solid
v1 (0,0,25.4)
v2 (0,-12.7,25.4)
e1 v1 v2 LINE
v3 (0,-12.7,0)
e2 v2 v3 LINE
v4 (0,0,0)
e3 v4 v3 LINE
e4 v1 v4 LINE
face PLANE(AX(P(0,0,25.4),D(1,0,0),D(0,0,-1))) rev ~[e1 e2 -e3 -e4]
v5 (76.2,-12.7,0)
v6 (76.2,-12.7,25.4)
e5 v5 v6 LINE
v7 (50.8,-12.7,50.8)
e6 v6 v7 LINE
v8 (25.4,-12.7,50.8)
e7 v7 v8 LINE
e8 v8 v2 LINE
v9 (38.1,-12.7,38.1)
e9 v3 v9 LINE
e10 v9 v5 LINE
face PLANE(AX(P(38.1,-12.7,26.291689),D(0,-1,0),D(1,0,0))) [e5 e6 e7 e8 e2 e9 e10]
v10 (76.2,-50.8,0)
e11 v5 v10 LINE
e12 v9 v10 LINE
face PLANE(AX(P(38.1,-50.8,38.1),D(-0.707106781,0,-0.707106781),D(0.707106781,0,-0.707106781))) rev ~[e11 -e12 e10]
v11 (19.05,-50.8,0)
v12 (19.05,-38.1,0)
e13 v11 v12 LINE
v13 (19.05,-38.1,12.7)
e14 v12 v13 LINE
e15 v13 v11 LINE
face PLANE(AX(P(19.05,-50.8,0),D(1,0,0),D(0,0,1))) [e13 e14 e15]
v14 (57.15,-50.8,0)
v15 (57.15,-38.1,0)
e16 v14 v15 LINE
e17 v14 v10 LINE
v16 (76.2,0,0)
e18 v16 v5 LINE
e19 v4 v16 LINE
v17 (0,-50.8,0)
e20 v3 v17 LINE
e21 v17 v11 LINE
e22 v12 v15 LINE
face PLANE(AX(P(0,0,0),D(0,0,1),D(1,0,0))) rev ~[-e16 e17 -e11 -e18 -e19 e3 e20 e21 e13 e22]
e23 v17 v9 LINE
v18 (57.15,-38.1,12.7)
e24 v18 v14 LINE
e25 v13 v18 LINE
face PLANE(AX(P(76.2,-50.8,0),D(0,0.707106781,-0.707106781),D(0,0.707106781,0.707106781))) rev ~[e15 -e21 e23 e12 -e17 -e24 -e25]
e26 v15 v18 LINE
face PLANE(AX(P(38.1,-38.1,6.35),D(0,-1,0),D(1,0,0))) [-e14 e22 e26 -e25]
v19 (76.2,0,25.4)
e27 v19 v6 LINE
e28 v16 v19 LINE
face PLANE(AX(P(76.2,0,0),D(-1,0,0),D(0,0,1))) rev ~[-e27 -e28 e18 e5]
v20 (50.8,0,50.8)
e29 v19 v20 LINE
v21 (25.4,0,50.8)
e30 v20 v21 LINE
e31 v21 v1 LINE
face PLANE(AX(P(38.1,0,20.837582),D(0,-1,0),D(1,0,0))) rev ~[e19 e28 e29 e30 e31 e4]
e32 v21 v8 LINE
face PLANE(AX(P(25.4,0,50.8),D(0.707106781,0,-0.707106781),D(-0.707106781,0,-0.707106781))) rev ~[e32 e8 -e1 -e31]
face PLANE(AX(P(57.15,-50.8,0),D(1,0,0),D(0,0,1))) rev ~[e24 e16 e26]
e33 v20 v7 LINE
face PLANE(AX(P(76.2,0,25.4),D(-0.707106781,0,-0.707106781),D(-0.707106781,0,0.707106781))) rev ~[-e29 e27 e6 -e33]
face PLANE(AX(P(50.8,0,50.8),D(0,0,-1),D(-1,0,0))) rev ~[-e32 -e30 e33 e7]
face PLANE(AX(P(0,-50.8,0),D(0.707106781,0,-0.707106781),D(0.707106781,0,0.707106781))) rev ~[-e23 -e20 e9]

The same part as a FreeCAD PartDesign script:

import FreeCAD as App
import Part
import Sketcher
Q = App.Units.Quantity


def add_polygon(sketch, points):
    """Adds a closed chain of lines whose ends are joined by coincident constraints."""
    first, n = sketch.GeometryCount, len(points)
    for a, b in zip(points, points[1:] + points[:1]):
        sketch.addGeometry(Part.LineSegment(App.Vector(*a, 0), App.Vector(*b, 0)), False)
    for i in range(n):
        sketch.addConstraint(Sketcher.Constraint("Coincident", first + i, 2, first + (i + 1) % n, 1))

doc = App.newDocument("Part")
body = doc.addObject("PartDesign::Body", "Body")

# Sketch on XZ plane
sketch1 = doc.addObject("Sketcher::SketchObject", "Sketch")
body.addObject(sketch1)
sketch1.AttachmentSupport = (doc.XZ_Plane, [""])
sketch1.MapMode = "FlatFace"
add_polygon(sketch1, [(0, 25.4), (0, 0), (76.2, 0), (76.2, 25.4), (50.8, 50.8), (25.4, 50.8)])  # lines 0-5
sketch1.addConstraint([
    Sketcher.Constraint("Vertical", 0),
    Sketcher.Constraint("Horizontal", 1),
    Sketcher.Constraint("Vertical", 2),
    Sketcher.Constraint("Horizontal", 4),
    Sketcher.Constraint("Coincident", 0, 2, -1, 1),
    Sketcher.Constraint("Perpendicular", 3, 5),
    Sketcher.Constraint("Horizontal", 2, 2, 5, 2),
    Sketcher.Constraint("Equal", 4, 0),
    Sketcher.Constraint("Equal", 3, 5),
    Sketcher.Constraint("DistanceX", 1, 1, 1, 2, Q("3 in")),
    Sketcher.Constraint("DistanceX", 4, 2, 4, 1, Q("1 in")),
])
pad1 = doc.addObject("PartDesign::Pad", "Pad")
body.addObject(pad1)
pad1.Profile = sketch1
pad1.Length = Q("2 in")

# Sketch on XZ plane
sketch2 = doc.addObject("Sketcher::SketchObject", "Sketch001")
body.addObject(sketch2)
sketch2.AttachmentSupport = (doc.XZ_Plane, [""])
sketch2.MapMode = "FlatFace"
sketch2.AttachmentOffset = App.Placement(App.Vector(0, 0, 2 * 25.4), App.Rotation())
add_polygon(sketch2, [(0, 25.4), (0, 0), (38.1, 38.1), (76.2, 0), (76.2, 25.4), (50.8, 50.8), (25.4, 50.8)])  # lines 0-6
sketch2.addConstraint([
    Sketcher.Constraint("Vertical", 0),
    Sketcher.Constraint("Vertical", 3),
    Sketcher.Constraint("Horizontal", 5),
    Sketcher.Constraint("Coincident", 0, 2, -1, 1),
    Sketcher.Constraint("PointOnObject", 2, 2, -1),
    Sketcher.Constraint("Perpendicular", 1, 2),
    Sketcher.Constraint("Parallel", 2, 4),
    Sketcher.Constraint("Perpendicular", 4, 6),
    Sketcher.Constraint("Horizontal", 3, 2, 6, 2),
    Sketcher.Constraint("Equal", 5, 0),
    Sketcher.Constraint("Equal", 1, 2),
    Sketcher.Constraint("DistanceX", 5, 2, 5, 1, Q("1 in")),
    Sketcher.Constraint("DistanceX", -1, 1, 2, 2, Q("3 in")),
])
pocket1 = doc.addObject("PartDesign::Pocket", "Pocket")
body.addObject(pocket1)
pocket1.Profile = sketch2
pocket1.Length = Q("1.5 in")

# Sketch on YZ plane
sketch3 = doc.addObject("Sketcher::SketchObject", "Sketch002")
body.addObject(sketch3)
sketch3.AttachmentSupport = (doc.YZ_Plane, [""])
sketch3.MapMode = "FlatFace"
sketch3.AttachmentOffset = App.Placement(App.Vector(0, 0, 3 * 25.4), App.Rotation())
add_polygon(sketch3, [(-50.8, 38.1), (-50.8, 0), (-12.7, 38.1)])  # lines 0-2
sketch3.addConstraint([
    Sketcher.Constraint("Vertical", 0),
    Sketcher.Constraint("Horizontal", 2),
    Sketcher.Constraint("PointOnObject", 0, 2, -1),
    Sketcher.Constraint("Equal", 2, 0),
    Sketcher.Constraint("DistanceX", 2, 2, 2, 1, Q("1.5 in")),
    Sketcher.Constraint("DistanceX", 0, 2, -1, 1, Q("2 in")),
])
pocket2 = doc.addObject("PartDesign::Pocket", "Pocket001")
body.addObject(pocket2)
pocket2.Profile = sketch3
pocket2.Length = Q("3 in")

# Sketch on XZ plane
sketch4 = doc.addObject("Sketcher::SketchObject", "Sketch003")
body.addObject(sketch4)
sketch4.AttachmentSupport = (doc.XZ_Plane, [""])
sketch4.MapMode = "FlatFace"
sketch4.AttachmentOffset = App.Placement(App.Vector(0, 0, 2 * 25.4), App.Rotation())
add_polygon(sketch4, [(19.05, 12.7), (19.05, 0), (57.15, 0), (57.15, 12.7)])  # lines 0-3
sketch4.addConstraint([
    Sketcher.Constraint("Vertical", 0),
    Sketcher.Constraint("Horizontal", 1),
    Sketcher.Constraint("Vertical", 2),
    Sketcher.Constraint("Horizontal", 3),
    Sketcher.Constraint("PointOnObject", 0, 2, -1),
    Sketcher.Constraint("DistanceX", 1, 1, 1, 2, Q("1.5 in")),
    Sketcher.Constraint("DistanceY", 0, 2, 0, 1, Q("0.5 in")),
    Sketcher.Constraint("DistanceX", -1, 1, 0, 2, Q("0.75 in")),
])
pocket3 = doc.addObject("PartDesign::Pocket", "Pocket002")
body.addObject(pocket3)
pocket3.Profile = sketch4
pocket3.Length = Q("0.5 in")

doc.recompute()
